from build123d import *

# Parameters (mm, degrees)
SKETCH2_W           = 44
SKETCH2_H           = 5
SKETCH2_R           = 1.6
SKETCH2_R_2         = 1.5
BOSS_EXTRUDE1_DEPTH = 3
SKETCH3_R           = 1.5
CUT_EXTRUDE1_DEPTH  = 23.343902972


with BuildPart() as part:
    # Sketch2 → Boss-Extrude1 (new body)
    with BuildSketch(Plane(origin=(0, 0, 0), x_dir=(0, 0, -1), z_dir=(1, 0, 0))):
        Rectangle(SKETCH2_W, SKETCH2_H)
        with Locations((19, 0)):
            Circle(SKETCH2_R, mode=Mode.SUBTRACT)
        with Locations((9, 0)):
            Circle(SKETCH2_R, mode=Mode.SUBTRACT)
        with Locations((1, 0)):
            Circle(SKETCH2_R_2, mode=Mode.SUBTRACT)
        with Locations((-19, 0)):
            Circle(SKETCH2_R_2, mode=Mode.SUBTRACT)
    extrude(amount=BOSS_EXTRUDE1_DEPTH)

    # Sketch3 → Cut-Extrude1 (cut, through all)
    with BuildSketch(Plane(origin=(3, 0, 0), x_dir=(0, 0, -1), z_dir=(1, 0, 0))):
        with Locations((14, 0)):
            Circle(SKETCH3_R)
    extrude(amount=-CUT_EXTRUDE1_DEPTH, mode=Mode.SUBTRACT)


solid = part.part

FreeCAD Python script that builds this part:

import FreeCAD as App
import Part
import Sketcher
Q = App.Units.Quantity

doc = App.newDocument("Part")
params = doc.addObject("Spreadsheet::Sheet", "Params")
for row, (alias, value) in enumerate([
    ("sketch1_diameter", "3 mm"),
    ("sketch1_diameter2", "3.2 mm"),
    ("sketch1_width", "5 mm"),
    ("sketch1_height", "44 mm"),
    ("pad1_length", "3 mm"),
    ("sketch2_diameter", "3 mm"),
], start=1):
    params.set(f"A{row}", alias)
    params.set(f"B{row}", "=" + value)
    params.setAlias(f"B{row}", alias)

body = doc.addObject("PartDesign::Body", "Body")

sketch1 = body.newObject("Sketcher::SketchObject", "Sketch")
sketch1.AttachmentSupport = (doc.getObject("YZ_Plane"), [""])
sketch1.MapMode = "FlatFace"
sketch1.addGeometry(Part.LineSegment(App.Vector(2.5, 22, 0), App.Vector(-2.5, 22, 0)), False)
sketch1.addGeometry(Part.LineSegment(App.Vector(-2.5, 22, 0), App.Vector(-2.5, -22, 0)), False)
sketch1.addGeometry(Part.LineSegment(App.Vector(-2.5, -22, 0), App.Vector(2.5, -22, 0)), False)
sketch1.addGeometry(Part.LineSegment(App.Vector(2.5, -22, 0), App.Vector(2.5, 22, 0)), False)
sketch1.addGeometry(Part.Circle(App.Vector(0, 19, 0), App.Vector(0, 0, 1), 1.5), False)
sketch1.addGeometry(Part.Circle(App.Vector(0, -1, 0), App.Vector(0, 0, 1), 1.5), False)
sketch1.addGeometry(Part.Circle(App.Vector(0, -9, 0), App.Vector(0, 0, 1), 1.6), False)
sketch1.addGeometry(Part.Circle(App.Vector(0, -19, 0), App.Vector(0, 0, 1), 1.6), False)
sketch1.addConstraint(Sketcher.Constraint("Coincident", 0, 2, 1, 1))
sketch1.addConstraint(Sketcher.Constraint("Coincident", 1, 2, 2, 1))
sketch1.addConstraint(Sketcher.Constraint("Coincident", 2, 2, 3, 1))
sketch1.addConstraint(Sketcher.Constraint("Coincident", 3, 2, 0, 1))
sketch1.addConstraint(Sketcher.Constraint("Horizontal", 0))
sketch1.addConstraint(Sketcher.Constraint("Vertical", 1))
sketch1.addConstraint(Sketcher.Constraint("Horizontal", 2))
sketch1.addConstraint(Sketcher.Constraint("Vertical", 3))
sketch1.addConstraint(Sketcher.Constraint("Equal", 4, 5))
sketch1.addConstraint(Sketcher.Constraint("Equal", 6, 7))
sketch1.addConstraint(Sketcher.Constraint("Symmetric", 4, 3, 7, 3, -1, 1))
sketch1.addConstraint(Sketcher.Constraint("Symmetric", 0, 2, 2, 2, -1, 1))
sketch1.addConstraint(Sketcher.Constraint("PointOnObject", 4, 3, -2))
sketch1.addConstraint(Sketcher.Constraint("PointOnObject", 5, 3, -2))
sketch1.addConstraint(Sketcher.Constraint("PointOnObject", 6, 3, -2))
sketch1.addConstraint(Sketcher.Constraint("Diameter", 4, Q("3 mm")))
sketch1.addConstraint(Sketcher.Constraint("Diameter", 6, Q("3.2 mm")))
sketch1.addConstraint(Sketcher.Constraint("DistanceX", 0, 2, 0, 1, Q("5 mm")))
sketch1.addConstraint(Sketcher.Constraint("DistanceY", 1, 2, 1, 1, Q("44 mm")))
sketch1.addConstraint(Sketcher.Constraint("DistanceY", -1, 1, 4, 3, Q("19 mm")))
sketch1.addConstraint(Sketcher.Constraint("DistanceY", 5, 3, -1, 1, Q("1 mm")))
sketch1.addConstraint(Sketcher.Constraint("DistanceY", 6, 3, -1, 1, Q("9 mm")))
sketch1.setExpression("Constraints[15]", "Params.sketch1_diameter")
sketch1.setExpression("Constraints[16]", "Params.sketch1_diameter2")
sketch1.setExpression("Constraints[17]", "Params.sketch1_width")
sketch1.setExpression("Constraints[18]", "Params.sketch1_height")
pad1 = body.newObject("PartDesign::Pad", "Pad")
pad1.Profile = sketch1
pad1.setExpression("Length", "Params.pad1_length")

sketch2 = body.newObject("Sketcher::SketchObject", "Sketch001")
sketch2.AttachmentSupport = (doc.getObject("YZ_Plane"), [""])
sketch2.MapMode = "FlatFace"
sketch2.AttachmentOffset = App.Placement(App.Vector(0, 0, 3), App.Rotation())
sketch2.addGeometry(Part.Circle(App.Vector(0, -14, 0), App.Vector(0, 0, 1), 1.5), False)
sketch2.addConstraint(Sketcher.Constraint("PointOnObject", 0, 3, -2))
sketch2.addConstraint(Sketcher.Constraint("Diameter", 0, Q("3 mm")))
sketch2.addConstraint(Sketcher.Constraint("DistanceY", 0, 3, -1, 1, Q("14 mm")))
sketch2.setExpression("Constraints[1]", "Params.sketch2_diameter")
pocket1 = body.newObject("PartDesign::Pocket", "Pocket")
pocket1.Profile = sketch2
pocket1.Type = "ThroughAll"

doc.recompute()
